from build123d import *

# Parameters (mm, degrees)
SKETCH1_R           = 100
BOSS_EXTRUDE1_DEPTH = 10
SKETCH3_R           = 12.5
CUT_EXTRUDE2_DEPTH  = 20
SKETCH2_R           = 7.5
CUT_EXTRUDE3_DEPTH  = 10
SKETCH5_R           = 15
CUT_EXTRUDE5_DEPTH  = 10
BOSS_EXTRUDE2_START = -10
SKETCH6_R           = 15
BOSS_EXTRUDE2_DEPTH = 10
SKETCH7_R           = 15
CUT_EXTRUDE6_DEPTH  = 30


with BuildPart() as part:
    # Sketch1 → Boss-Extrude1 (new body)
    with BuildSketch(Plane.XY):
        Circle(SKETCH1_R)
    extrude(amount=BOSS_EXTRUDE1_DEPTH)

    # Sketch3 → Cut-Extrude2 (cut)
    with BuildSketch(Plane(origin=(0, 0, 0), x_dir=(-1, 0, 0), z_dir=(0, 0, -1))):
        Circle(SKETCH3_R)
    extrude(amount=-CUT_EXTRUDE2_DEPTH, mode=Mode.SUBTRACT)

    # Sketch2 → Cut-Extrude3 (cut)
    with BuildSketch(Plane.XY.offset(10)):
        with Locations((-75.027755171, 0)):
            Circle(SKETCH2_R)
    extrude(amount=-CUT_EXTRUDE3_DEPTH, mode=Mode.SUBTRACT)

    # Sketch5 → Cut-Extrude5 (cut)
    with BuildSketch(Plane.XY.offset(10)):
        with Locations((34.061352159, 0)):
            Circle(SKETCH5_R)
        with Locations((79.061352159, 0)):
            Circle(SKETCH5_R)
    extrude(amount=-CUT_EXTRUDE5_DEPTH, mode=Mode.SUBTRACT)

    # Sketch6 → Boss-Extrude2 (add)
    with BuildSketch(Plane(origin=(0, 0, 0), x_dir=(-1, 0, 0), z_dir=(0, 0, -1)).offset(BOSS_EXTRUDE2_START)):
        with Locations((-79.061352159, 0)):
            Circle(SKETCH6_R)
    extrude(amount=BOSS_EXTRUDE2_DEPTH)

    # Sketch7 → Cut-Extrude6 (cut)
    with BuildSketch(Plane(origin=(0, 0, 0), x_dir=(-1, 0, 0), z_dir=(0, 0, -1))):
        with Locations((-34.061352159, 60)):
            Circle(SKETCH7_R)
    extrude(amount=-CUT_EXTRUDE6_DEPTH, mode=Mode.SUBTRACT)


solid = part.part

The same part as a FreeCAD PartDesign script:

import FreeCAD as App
import Part
import Sketcher
Q = App.Units.Quantity

doc = App.newDocument("Part")
body = doc.addObject("PartDesign::Body", "Body")

# Sketch on XY plane
sketch1 = body.newObject("Sketcher::SketchObject", "Sketch")
sketch1.AttachmentSupport = (doc.getObject("XY_Plane"), [""])
sketch1.MapMode = "FlatFace"
sketch1.addGeometry(Part.Circle(App.Vector(0, 0, 0), App.Vector(0, 0, 1), 100), False)
sketch1.addConstraint([
    Sketcher.Constraint("Coincident", 0, 3, -1, 1),
    Sketcher.Constraint("Diameter", 0, Q("200 mm")),
])
pad1 = body.newObject("PartDesign::Pad", "Pad")
pad1.Profile = sketch1
pad1.Length = 10

# Sketch on XY plane
sketch2 = body.newObject("Sketcher::SketchObject", "Sketch001")
sketch2.AttachmentSupport = (doc.getObject("XY_Plane"), [""])
sketch2.MapMode = "FlatFace"
sketch2.addGeometry(Part.Circle(App.Vector(0, 0, 0), App.Vector(0, 0, 1), 12.5), False)
sketch2.addConstraint([
    Sketcher.Constraint("Coincident", 0, 3, -1, 1),
    Sketcher.Constraint("Diameter", 0, Q("25 mm")),
])
pocket1 = body.newObject("PartDesign::Pocket", "Pocket")
pocket1.Profile = sketch2
pocket1.Length = 20
pocket1.Reversed = True

# Sketch on XY plane
sketch3 = body.newObject("Sketcher::SketchObject", "Sketch002")
sketch3.AttachmentSupport = (doc.getObject("XY_Plane"), [""])
sketch3.MapMode = "FlatFace"
sketch3.AttachmentOffset = App.Placement(App.Vector(0, 0, 10), App.Rotation())
sketch3.addGeometry(Part.Circle(App.Vector(-75.027755, 0, 0), App.Vector(0, 0, 1), 7.5), False)
sketch3.addConstraint([
    Sketcher.Constraint("PointOnObject", 0, 3, -1),
    Sketcher.Constraint("Diameter", 0, Q("15 mm")),
    Sketcher.Constraint("DistanceX", 0, 3, -1, 1, Q("75.027755 mm")),
])
pocket2 = body.newObject("PartDesign::Pocket", "Pocket001")
pocket2.Profile = sketch3
pocket2.Length = 10

# Sketch on XY plane
sketch4 = body.newObject("Sketcher::SketchObject", "Sketch003")
sketch4.AttachmentSupport = (doc.getObject("XY_Plane"), [""])
sketch4.MapMode = "FlatFace"
sketch4.AttachmentOffset = App.Placement(App.Vector(0, 0, 10), App.Rotation())
sketch4.addGeometry([
    Part.Circle(App.Vector(34.061352, 0, 0), App.Vector(0, 0, 1), 15),
    Part.Circle(App.Vector(79.061352, 0, 0), App.Vector(0, 0, 1), 15),
], False)
sketch4.addConstraint([
    Sketcher.Constraint("Equal", 0, 1),
    Sketcher.Constraint("PointOnObject", 0, 3, -1),
    Sketcher.Constraint("PointOnObject", 1, 3, -1),
    Sketcher.Constraint("Diameter", 0, Q("30 mm")),
    Sketcher.Constraint("DistanceX", 0, 3, 1, 3, Q("45 mm")),
    Sketcher.Constraint("DistanceX", -1, 1, 0, 3, Q("34.061352 mm")),
])
pocket3 = body.newObject("PartDesign::Pocket", "Pocket002")
pocket3.Profile = sketch4
pocket3.Length = 10

# Sketch on XY plane
sketch5 = body.newObject("Sketcher::SketchObject", "Sketch004")
sketch5.AttachmentSupport = (doc.getObject("XY_Plane"), [""])
sketch5.MapMode = "FlatFace"
sketch5.AttachmentOffset = App.Placement(App.Vector(0, 0, 10), App.Rotation())
sketch5.addGeometry(Part.Circle(App.Vector(79.061352, 0, 0), App.Vector(0, 0, 1), 15), False)
sketch5.addConstraint([
    Sketcher.Constraint("PointOnObject", 0, 3, -1),
    Sketcher.Constraint("Diameter", 0, Q("30 mm")),
    Sketcher.Constraint("DistanceX", -1, 1, 0, 3, Q("79.061352 mm")),
])
pad2 = body.newObject("PartDesign::Pad", "Pad001")
pad2.Profile = sketch5
pad2.Length = 10
pad2.Reversed = True

# Sketch on XY plane
sketch6 = body.newObject("Sketcher::SketchObject", "Sketch005")
sketch6.AttachmentSupport = (doc.getObject("XY_Plane"), [""])
sketch6.MapMode = "FlatFace"
sketch6.addGeometry(Part.Circle(App.Vector(34.061352, 60, 0), App.Vector(0, 0, 1), 15), False)
sketch6.addConstraint([
    Sketcher.Constraint("Diameter", 0, Q("30 mm")),
    Sketcher.Constraint("DistanceY", -1, 1, 0, 3, Q("60 mm")),
    Sketcher.Constraint("DistanceX", -1, 1, 0, 3, Q("34.061352 mm")),
])
pocket4 = body.newObject("PartDesign::Pocket", "Pocket003")
pocket4.Profile = sketch6
pocket4.Length = 30
pocket4.Reversed = True

doc.recompute()
